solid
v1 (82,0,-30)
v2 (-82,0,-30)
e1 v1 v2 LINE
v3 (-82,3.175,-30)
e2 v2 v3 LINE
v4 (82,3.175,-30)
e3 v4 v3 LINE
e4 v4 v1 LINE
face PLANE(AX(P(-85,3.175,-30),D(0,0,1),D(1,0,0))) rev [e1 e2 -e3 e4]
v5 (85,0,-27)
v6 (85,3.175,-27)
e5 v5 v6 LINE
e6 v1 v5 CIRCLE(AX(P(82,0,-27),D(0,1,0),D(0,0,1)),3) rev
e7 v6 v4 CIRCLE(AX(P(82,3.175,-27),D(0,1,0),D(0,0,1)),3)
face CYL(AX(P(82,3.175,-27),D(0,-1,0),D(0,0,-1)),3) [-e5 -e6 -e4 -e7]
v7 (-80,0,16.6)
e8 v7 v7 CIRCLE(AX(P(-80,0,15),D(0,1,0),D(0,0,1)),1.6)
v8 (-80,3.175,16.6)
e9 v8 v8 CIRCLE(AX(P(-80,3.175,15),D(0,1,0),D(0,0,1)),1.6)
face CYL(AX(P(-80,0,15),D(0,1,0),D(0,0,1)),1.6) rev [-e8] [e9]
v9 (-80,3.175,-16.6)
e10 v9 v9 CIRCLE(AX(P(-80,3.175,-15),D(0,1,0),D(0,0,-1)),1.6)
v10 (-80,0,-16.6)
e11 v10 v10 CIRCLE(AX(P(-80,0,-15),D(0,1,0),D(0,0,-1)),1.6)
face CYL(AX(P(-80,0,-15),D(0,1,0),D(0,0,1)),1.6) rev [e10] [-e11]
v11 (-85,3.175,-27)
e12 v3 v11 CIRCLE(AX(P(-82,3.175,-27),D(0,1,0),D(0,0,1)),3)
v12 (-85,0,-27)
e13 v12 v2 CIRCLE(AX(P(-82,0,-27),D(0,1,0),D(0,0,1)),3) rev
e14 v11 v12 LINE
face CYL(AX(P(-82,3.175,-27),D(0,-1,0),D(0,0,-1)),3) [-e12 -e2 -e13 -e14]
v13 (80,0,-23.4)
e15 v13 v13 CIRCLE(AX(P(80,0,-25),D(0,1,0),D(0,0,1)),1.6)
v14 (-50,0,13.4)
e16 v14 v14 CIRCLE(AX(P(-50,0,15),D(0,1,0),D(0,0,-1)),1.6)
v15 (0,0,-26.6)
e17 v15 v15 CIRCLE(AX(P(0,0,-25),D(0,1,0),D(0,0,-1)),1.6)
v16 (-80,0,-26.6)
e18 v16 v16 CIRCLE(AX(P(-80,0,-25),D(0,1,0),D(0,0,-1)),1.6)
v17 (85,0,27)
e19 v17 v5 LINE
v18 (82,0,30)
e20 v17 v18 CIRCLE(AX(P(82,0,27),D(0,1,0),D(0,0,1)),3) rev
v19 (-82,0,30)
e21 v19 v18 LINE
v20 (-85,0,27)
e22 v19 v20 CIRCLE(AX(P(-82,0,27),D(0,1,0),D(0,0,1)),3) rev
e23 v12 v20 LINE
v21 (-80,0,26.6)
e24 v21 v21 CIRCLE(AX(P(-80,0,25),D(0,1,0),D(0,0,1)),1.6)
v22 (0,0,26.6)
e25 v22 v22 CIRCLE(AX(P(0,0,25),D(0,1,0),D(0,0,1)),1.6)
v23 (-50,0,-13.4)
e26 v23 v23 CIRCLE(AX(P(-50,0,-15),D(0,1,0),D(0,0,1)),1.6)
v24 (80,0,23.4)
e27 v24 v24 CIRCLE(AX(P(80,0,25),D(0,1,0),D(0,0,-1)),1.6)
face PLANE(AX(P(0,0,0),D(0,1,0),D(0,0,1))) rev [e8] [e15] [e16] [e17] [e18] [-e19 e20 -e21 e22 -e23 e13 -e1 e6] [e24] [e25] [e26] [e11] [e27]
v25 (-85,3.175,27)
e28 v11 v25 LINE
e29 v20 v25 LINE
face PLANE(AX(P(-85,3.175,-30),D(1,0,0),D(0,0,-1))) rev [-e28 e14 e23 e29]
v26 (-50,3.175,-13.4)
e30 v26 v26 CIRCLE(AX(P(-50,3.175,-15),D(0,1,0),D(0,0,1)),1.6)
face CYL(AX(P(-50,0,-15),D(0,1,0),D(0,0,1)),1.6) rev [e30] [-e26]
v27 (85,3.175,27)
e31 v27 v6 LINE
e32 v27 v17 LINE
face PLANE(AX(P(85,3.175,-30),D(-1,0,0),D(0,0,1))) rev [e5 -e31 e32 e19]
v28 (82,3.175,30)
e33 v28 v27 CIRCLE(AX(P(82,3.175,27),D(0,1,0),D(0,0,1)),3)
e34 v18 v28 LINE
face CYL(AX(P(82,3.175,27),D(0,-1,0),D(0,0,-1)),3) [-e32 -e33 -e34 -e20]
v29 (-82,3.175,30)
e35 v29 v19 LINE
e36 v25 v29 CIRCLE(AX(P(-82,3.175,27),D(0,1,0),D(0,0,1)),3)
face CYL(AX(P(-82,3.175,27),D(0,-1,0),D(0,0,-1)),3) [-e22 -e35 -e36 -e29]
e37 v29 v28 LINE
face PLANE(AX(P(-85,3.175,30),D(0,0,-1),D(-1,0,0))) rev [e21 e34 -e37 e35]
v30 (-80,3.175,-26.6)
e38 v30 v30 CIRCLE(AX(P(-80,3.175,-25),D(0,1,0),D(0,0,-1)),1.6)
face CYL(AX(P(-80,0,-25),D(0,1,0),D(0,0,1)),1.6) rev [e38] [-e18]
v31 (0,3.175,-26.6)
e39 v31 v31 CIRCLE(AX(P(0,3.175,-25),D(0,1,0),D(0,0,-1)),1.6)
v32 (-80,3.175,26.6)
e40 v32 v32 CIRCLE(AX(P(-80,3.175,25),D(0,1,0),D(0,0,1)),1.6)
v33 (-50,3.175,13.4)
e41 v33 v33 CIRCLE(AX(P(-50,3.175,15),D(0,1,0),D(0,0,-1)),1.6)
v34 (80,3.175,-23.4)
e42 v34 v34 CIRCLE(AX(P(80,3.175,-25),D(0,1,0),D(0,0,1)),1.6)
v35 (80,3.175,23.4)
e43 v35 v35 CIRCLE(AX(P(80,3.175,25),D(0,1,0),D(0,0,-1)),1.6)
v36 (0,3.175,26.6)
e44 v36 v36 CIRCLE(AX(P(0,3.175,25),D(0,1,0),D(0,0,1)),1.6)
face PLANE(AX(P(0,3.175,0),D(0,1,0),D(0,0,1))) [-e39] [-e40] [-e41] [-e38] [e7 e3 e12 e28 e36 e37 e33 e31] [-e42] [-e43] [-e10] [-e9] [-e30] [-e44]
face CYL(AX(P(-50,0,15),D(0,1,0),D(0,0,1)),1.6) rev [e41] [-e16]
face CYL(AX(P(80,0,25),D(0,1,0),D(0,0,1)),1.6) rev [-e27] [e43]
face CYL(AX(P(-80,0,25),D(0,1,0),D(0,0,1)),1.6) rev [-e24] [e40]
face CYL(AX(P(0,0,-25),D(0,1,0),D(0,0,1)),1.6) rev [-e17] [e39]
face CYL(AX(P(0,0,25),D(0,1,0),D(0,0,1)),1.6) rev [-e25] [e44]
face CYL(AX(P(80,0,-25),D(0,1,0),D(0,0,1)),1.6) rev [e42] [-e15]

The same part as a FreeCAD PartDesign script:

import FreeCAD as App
import Part
import Sketcher
Q = App.Units.Quantity


def edges_at(feature, points):
    """Names of the edges that pass closest to the given points."""
    edges = feature.Shape.Edges
    near = lambda p: min(range(len(edges)), key=lambda i: edges[i].distToShape(Part.Vertex(*p))[0])
    return sorted({f"Edge{near(p) + 1}" for p in points})

doc = App.newDocument("Part")
body = doc.addObject("PartDesign::Body", "Body")

sketch1 = doc.addObject("Sketcher::SketchObject", "Sketch")
body.addObject(sketch1)
sketch1.AttachmentSupport = (doc.XZ_Plane, [""])
sketch1.MapMode = "FlatFace"
sketch1.addGeometry(Part.LineSegment(App.Vector(-85, -30, 0), App.Vector(-85, 30, 0)), False)
sketch1.addGeometry(Part.LineSegment(App.Vector(-85, 30, 0), App.Vector(85, 30, 0)), False)
sketch1.addGeometry(Part.LineSegment(App.Vector(85, 30, 0), App.Vector(85, -30, 0)), False)
sketch1.addGeometry(Part.LineSegment(App.Vector(85, -30, 0), App.Vector(-85, -30, 0)), False)
sketch1.addConstraint(Sketcher.Constraint("Coincident", 0, 2, 1, 1))
sketch1.addConstraint(Sketcher.Constraint("Coincident", 1, 2, 2, 1))
sketch1.addConstraint(Sketcher.Constraint("Coincident", 2, 2, 3, 1))
sketch1.addConstraint(Sketcher.Constraint("Coincident", 3, 2, 0, 1))
sketch1.addConstraint(Sketcher.Constraint("Vertical", 0))
sketch1.addConstraint(Sketcher.Constraint("Horizontal", 1))
sketch1.addConstraint(Sketcher.Constraint("Vertical", 2))
sketch1.addConstraint(Sketcher.Constraint("Horizontal", 3))
sketch1.addConstraint(Sketcher.Constraint("Symmetric", 0, 2, 2, 2, -1, 1))
sketch1.addConstraint(Sketcher.Constraint("DistanceX", 1, 1, 1, 2, Q("170 mm")))
sketch1.addConstraint(Sketcher.Constraint("DistanceY", 0, 1, 0, 2, Q("60 mm")))
pad1 = doc.addObject("PartDesign::Pad", "Pad")
body.addObject(pad1)
pad1.Profile = sketch1
pad1.Length = 3.175
pad1.Reversed = True

sketch2 = doc.addObject("Sketcher::SketchObject", "Sketch001")
body.addObject(sketch2)
sketch2.AttachmentSupport = (doc.XZ_Plane, [""])
sketch2.MapMode = "FlatFace"
sketch2.AttachmentOffset = App.Placement(App.Vector(0, 0, -3.175), App.Rotation())
sketch2.addGeometry(Part.Circle(App.Vector(-80, 25, 0), App.Vector(0, 0, 1), 1.6), False)
sketch2.addGeometry(Part.Circle(App.Vector(-80, -25, 0), App.Vector(0, 0, 1), 1.6), False)
sketch2.addGeometry(Part.Circle(App.Vector(80, -25, 0), App.Vector(0, 0, 1), 1.6), False)
sketch2.addGeometry(Part.Circle(App.Vector(80, 25, 0), App.Vector(0, 0, 1), 1.6), False)
sketch2.addGeometry(Part.Circle(App.Vector(0, 25, 0), App.Vector(0, 0, 1), 1.6), False)
sketch2.addGeometry(Part.Circle(App.Vector(0, -25, 0), App.Vector(0, 0, 1), 1.6), False)
sketch2.addConstraint(Sketcher.Constraint("Equal", 0, 1))
sketch2.addConstraint(Sketcher.Constraint("Equal", 1, 2))
sketch2.addConstraint(Sketcher.Constraint("Equal", 2, 3))
sketch2.addConstraint(Sketcher.Constraint("Equal", 3, 4))
sketch2.addConstraint(Sketcher.Constraint("Equal", 4, 5))
sketch2.addConstraint(Sketcher.Constraint("Symmetric", 0, 3, 2, 3, -1, 1))
sketch2.addConstraint(Sketcher.Constraint("Symmetric", 1, 3, 3, 3, -1, 1))
sketch2.addConstraint(Sketcher.Constraint("Symmetric", 4, 3, 5, 3, -1, 1))
sketch2.addConstraint(Sketcher.Constraint("Symmetric", 1, 3, 2, 3, -2))
sketch2.addConstraint(Sketcher.Constraint("PointOnObject", 4, 3, -2))
sketch2.addConstraint(Sketcher.Constraint("Horizontal", 3, 3, 4, 3))
sketch2.addConstraint(Sketcher.Constraint("Diameter", 0, Q("3.2 mm")))
sketch2.addConstraint(Sketcher.Constraint("DistanceX", 0, 3, -1, 1, Q("80 mm")))
sketch2.addConstraint(Sketcher.Constraint("DistanceY", -1, 1, 0, 3, Q("25 mm")))
pocket1 = doc.addObject("PartDesign::Pocket", "Pocket")
body.addObject(pocket1)
pocket1.Profile = sketch2
pocket1.Type = "ThroughAll"
pocket1.Reversed = True

sketch3 = doc.addObject("Sketcher::SketchObject", "Sketch002")
body.addObject(sketch3)
sketch3.AttachmentSupport = (doc.XZ_Plane, [""])
sketch3.MapMode = "FlatFace"
sketch3.AttachmentOffset = App.Placement(App.Vector(0, 0, -3.175), App.Rotation())
sketch3.addGeometry(Part.Circle(App.Vector(-80, 15, 0), App.Vector(0, 0, 1), 1.6), False)
sketch3.addGeometry(Part.Circle(App.Vector(-80, -15, 0), App.Vector(0, 0, 1), 1.6), False)
sketch3.addGeometry(Part.Circle(App.Vector(-50, -15, 0), App.Vector(0, 0, 1), 1.6), False)
sketch3.addGeometry(Part.Circle(App.Vector(-50, 15, 0), App.Vector(0, 0, 1), 1.6), False)
sketch3.addConstraint(Sketcher.Constraint("Equal", 0, 1))
sketch3.addConstraint(Sketcher.Constraint("Equal", 1, 2))
sketch3.addConstraint(Sketcher.Constraint("Equal", 2, 3))
sketch3.addConstraint(Sketcher.Constraint("Symmetric", 0, 3, 1, 3, -1))
sketch3.addConstraint(Sketcher.Constraint("Symmetric", 2, 3, 3, 3, -1))
sketch3.addConstraint(Sketcher.Constraint("Horizontal", 1, 3, 2, 3))
sketch3.addConstraint(Sketcher.Constraint("Diameter", 0, Q("3.2 mm")))
sketch3.addConstraint(Sketcher.Constraint("DistanceX", 0, 3, -1, 1, Q("80 mm")))
sketch3.addConstraint(Sketcher.Constraint("DistanceY", -1, 1, 0, 3, Q("15 mm")))
sketch3.addConstraint(Sketcher.Constraint("DistanceX", 2, 3, -1, 1, Q("50 mm")))
pocket2 = doc.addObject("PartDesign::Pocket", "Pocket001")
body.addObject(pocket2)
pocket2.Profile = sketch3
pocket2.Type = "ThroughAll"
pocket2.Reversed = True
doc.recompute()

fillet = doc.addObject("PartDesign::Fillet", "Fillet")
body.addObject(fillet)
fillet.Base = (pocket2, edges_at(pocket2, [
    (85, 1.587, 30),
    (-85, 1.587, 30),
    (-85, 1.587, -30),
    (85, 1.587, -30),
]))
fillet.Radius = 3

doc.recompute()
